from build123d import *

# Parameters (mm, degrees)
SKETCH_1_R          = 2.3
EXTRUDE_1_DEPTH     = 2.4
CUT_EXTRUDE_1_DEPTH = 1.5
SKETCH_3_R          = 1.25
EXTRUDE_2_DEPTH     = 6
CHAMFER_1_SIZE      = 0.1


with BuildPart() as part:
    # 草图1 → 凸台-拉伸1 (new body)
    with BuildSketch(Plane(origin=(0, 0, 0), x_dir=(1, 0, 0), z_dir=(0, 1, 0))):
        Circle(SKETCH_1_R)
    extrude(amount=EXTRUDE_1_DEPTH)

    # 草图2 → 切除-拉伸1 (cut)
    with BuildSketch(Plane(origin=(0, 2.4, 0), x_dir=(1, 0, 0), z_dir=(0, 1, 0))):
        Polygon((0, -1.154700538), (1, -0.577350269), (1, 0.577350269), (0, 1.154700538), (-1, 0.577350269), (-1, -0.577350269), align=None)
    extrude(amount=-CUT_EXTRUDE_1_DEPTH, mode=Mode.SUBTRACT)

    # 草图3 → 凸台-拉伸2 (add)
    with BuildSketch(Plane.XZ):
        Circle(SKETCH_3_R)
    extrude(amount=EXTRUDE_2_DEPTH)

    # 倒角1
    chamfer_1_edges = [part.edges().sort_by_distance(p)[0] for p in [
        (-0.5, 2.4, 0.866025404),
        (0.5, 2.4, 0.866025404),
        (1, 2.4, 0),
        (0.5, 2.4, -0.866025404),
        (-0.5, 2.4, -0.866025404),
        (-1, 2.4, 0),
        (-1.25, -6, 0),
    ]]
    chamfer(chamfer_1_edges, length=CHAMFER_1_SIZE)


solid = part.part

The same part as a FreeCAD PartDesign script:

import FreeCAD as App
import Part
import Sketcher
Q = App.Units.Quantity


def edges_at(feature, points):
    """Names of the edges that pass closest to the given points."""
    edges = feature.Shape.Edges
    near = lambda p: min(range(len(edges)), key=lambda i: edges[i].distToShape(Part.Vertex(*p))[0])
    return sorted({f"Edge{near(p) + 1}" for p in points})


def add_polygon(sketch, points):
    """Adds a closed chain of lines whose ends are joined by coincident constraints."""
    first, n = sketch.GeometryCount, len(points)
    for a, b in zip(points, points[1:] + points[:1]):
        sketch.addGeometry(Part.LineSegment(App.Vector(*a, 0), App.Vector(*b, 0)), False)
    for i in range(n):
        sketch.addConstraint(Sketcher.Constraint("Coincident", first + i, 2, first + (i + 1) % n, 1))

doc = App.newDocument("Part")
body = doc.addObject("PartDesign::Body", "Body")

sketch1 = doc.addObject("Sketcher::SketchObject", "Sketch")
body.addObject(sketch1)
sketch1.AttachmentSupport = (doc.XZ_Plane, [""])
sketch1.MapMode = "FlatFace"
sketch1.addGeometry(Part.Circle(App.Vector(0, 0, 0), App.Vector(0, 0, 1), 2.3), False)
sketch1.addConstraint([
    Sketcher.Constraint("Coincident", 0, 3, -1, 1),
    Sketcher.Constraint("Diameter", 0, Q("4.6 mm")),
])
pad1 = doc.addObject("PartDesign::Pad", "Pad")
body.addObject(pad1)
pad1.Profile = sketch1
pad1.Length = 2.4
pad1.Reversed = True

sketch2 = doc.addObject("Sketcher::SketchObject", "Sketch001")
body.addObject(sketch2)
sketch2.AttachmentSupport = (doc.XZ_Plane, [""])
sketch2.MapMode = "FlatFace"
sketch2.AttachmentOffset = App.Placement(App.Vector(0, 0, -2.4), App.Rotation())
add_polygon(sketch2, [(0, 1.2), (1, 0.6), (1, -0.6), (0, -1.2), (-1, -0.6), (-1, 0.6)])
sketch2.addConstraint([
    Sketcher.Constraint("Vertical", 1),
    Sketcher.Constraint("Vertical", 4),
    Sketcher.Constraint("Symmetric", 0, 2, 3, 2, -1, 1),
    Sketcher.Constraint("Symmetric", 2, 2, 5, 2, -1, 1),
    Sketcher.Constraint("PointOnObject", 2, 2, -2),
    Sketcher.Constraint("Parallel", 2, 5),
    Sketcher.Constraint("Horizontal", 1, 2, 3, 2),
    Sketcher.Constraint("Angle", 0, Q("-30 deg")),
    Sketcher.Constraint("DistanceX", -1, 1, 0, 2, Q("1 mm")),
    Sketcher.Constraint("DistanceY", 1, 2, 1, 1, Q("1.154701 mm")),
])
pocket1 = doc.addObject("PartDesign::Pocket", "Pocket")
body.addObject(pocket1)
pocket1.Profile = sketch2
pocket1.Length = 1.5
pocket1.Reversed = True

sketch3 = doc.addObject("Sketcher::SketchObject", "Sketch002")
body.addObject(sketch3)
sketch3.AttachmentSupport = (doc.XZ_Plane, [""])
sketch3.MapMode = "FlatFace"
sketch3.addGeometry(Part.Circle(App.Vector(0, 0, 0), App.Vector(0, 0, 1), 1.2), False)
sketch3.addConstraint([
    Sketcher.Constraint("Coincident", 0, 3, -1, 1),
    Sketcher.Constraint("Diameter", 0, Q("2.5 mm")),
])
pad2 = doc.addObject("PartDesign::Pad", "Pad001")
body.addObject(pad2)
pad2.Profile = sketch3
pad2.Length = 6
doc.recompute()

chamfer = doc.addObject("PartDesign::Chamfer", "Chamfer")
body.addObject(chamfer)
chamfer.Base = (pad2, edges_at(pad2, [
    (-0.5, 2.4, 0.866),
    (0.5, 2.4, 0.866),
    (1, 2.4, 0),
    (0.5, 2.4, -0.866),
    (-0.5, 2.4, -0.866),
    (-1, 2.4, 0),
    (-1.25, -6, 0),
]))
chamfer.Size = 0.1

doc.recompute()
